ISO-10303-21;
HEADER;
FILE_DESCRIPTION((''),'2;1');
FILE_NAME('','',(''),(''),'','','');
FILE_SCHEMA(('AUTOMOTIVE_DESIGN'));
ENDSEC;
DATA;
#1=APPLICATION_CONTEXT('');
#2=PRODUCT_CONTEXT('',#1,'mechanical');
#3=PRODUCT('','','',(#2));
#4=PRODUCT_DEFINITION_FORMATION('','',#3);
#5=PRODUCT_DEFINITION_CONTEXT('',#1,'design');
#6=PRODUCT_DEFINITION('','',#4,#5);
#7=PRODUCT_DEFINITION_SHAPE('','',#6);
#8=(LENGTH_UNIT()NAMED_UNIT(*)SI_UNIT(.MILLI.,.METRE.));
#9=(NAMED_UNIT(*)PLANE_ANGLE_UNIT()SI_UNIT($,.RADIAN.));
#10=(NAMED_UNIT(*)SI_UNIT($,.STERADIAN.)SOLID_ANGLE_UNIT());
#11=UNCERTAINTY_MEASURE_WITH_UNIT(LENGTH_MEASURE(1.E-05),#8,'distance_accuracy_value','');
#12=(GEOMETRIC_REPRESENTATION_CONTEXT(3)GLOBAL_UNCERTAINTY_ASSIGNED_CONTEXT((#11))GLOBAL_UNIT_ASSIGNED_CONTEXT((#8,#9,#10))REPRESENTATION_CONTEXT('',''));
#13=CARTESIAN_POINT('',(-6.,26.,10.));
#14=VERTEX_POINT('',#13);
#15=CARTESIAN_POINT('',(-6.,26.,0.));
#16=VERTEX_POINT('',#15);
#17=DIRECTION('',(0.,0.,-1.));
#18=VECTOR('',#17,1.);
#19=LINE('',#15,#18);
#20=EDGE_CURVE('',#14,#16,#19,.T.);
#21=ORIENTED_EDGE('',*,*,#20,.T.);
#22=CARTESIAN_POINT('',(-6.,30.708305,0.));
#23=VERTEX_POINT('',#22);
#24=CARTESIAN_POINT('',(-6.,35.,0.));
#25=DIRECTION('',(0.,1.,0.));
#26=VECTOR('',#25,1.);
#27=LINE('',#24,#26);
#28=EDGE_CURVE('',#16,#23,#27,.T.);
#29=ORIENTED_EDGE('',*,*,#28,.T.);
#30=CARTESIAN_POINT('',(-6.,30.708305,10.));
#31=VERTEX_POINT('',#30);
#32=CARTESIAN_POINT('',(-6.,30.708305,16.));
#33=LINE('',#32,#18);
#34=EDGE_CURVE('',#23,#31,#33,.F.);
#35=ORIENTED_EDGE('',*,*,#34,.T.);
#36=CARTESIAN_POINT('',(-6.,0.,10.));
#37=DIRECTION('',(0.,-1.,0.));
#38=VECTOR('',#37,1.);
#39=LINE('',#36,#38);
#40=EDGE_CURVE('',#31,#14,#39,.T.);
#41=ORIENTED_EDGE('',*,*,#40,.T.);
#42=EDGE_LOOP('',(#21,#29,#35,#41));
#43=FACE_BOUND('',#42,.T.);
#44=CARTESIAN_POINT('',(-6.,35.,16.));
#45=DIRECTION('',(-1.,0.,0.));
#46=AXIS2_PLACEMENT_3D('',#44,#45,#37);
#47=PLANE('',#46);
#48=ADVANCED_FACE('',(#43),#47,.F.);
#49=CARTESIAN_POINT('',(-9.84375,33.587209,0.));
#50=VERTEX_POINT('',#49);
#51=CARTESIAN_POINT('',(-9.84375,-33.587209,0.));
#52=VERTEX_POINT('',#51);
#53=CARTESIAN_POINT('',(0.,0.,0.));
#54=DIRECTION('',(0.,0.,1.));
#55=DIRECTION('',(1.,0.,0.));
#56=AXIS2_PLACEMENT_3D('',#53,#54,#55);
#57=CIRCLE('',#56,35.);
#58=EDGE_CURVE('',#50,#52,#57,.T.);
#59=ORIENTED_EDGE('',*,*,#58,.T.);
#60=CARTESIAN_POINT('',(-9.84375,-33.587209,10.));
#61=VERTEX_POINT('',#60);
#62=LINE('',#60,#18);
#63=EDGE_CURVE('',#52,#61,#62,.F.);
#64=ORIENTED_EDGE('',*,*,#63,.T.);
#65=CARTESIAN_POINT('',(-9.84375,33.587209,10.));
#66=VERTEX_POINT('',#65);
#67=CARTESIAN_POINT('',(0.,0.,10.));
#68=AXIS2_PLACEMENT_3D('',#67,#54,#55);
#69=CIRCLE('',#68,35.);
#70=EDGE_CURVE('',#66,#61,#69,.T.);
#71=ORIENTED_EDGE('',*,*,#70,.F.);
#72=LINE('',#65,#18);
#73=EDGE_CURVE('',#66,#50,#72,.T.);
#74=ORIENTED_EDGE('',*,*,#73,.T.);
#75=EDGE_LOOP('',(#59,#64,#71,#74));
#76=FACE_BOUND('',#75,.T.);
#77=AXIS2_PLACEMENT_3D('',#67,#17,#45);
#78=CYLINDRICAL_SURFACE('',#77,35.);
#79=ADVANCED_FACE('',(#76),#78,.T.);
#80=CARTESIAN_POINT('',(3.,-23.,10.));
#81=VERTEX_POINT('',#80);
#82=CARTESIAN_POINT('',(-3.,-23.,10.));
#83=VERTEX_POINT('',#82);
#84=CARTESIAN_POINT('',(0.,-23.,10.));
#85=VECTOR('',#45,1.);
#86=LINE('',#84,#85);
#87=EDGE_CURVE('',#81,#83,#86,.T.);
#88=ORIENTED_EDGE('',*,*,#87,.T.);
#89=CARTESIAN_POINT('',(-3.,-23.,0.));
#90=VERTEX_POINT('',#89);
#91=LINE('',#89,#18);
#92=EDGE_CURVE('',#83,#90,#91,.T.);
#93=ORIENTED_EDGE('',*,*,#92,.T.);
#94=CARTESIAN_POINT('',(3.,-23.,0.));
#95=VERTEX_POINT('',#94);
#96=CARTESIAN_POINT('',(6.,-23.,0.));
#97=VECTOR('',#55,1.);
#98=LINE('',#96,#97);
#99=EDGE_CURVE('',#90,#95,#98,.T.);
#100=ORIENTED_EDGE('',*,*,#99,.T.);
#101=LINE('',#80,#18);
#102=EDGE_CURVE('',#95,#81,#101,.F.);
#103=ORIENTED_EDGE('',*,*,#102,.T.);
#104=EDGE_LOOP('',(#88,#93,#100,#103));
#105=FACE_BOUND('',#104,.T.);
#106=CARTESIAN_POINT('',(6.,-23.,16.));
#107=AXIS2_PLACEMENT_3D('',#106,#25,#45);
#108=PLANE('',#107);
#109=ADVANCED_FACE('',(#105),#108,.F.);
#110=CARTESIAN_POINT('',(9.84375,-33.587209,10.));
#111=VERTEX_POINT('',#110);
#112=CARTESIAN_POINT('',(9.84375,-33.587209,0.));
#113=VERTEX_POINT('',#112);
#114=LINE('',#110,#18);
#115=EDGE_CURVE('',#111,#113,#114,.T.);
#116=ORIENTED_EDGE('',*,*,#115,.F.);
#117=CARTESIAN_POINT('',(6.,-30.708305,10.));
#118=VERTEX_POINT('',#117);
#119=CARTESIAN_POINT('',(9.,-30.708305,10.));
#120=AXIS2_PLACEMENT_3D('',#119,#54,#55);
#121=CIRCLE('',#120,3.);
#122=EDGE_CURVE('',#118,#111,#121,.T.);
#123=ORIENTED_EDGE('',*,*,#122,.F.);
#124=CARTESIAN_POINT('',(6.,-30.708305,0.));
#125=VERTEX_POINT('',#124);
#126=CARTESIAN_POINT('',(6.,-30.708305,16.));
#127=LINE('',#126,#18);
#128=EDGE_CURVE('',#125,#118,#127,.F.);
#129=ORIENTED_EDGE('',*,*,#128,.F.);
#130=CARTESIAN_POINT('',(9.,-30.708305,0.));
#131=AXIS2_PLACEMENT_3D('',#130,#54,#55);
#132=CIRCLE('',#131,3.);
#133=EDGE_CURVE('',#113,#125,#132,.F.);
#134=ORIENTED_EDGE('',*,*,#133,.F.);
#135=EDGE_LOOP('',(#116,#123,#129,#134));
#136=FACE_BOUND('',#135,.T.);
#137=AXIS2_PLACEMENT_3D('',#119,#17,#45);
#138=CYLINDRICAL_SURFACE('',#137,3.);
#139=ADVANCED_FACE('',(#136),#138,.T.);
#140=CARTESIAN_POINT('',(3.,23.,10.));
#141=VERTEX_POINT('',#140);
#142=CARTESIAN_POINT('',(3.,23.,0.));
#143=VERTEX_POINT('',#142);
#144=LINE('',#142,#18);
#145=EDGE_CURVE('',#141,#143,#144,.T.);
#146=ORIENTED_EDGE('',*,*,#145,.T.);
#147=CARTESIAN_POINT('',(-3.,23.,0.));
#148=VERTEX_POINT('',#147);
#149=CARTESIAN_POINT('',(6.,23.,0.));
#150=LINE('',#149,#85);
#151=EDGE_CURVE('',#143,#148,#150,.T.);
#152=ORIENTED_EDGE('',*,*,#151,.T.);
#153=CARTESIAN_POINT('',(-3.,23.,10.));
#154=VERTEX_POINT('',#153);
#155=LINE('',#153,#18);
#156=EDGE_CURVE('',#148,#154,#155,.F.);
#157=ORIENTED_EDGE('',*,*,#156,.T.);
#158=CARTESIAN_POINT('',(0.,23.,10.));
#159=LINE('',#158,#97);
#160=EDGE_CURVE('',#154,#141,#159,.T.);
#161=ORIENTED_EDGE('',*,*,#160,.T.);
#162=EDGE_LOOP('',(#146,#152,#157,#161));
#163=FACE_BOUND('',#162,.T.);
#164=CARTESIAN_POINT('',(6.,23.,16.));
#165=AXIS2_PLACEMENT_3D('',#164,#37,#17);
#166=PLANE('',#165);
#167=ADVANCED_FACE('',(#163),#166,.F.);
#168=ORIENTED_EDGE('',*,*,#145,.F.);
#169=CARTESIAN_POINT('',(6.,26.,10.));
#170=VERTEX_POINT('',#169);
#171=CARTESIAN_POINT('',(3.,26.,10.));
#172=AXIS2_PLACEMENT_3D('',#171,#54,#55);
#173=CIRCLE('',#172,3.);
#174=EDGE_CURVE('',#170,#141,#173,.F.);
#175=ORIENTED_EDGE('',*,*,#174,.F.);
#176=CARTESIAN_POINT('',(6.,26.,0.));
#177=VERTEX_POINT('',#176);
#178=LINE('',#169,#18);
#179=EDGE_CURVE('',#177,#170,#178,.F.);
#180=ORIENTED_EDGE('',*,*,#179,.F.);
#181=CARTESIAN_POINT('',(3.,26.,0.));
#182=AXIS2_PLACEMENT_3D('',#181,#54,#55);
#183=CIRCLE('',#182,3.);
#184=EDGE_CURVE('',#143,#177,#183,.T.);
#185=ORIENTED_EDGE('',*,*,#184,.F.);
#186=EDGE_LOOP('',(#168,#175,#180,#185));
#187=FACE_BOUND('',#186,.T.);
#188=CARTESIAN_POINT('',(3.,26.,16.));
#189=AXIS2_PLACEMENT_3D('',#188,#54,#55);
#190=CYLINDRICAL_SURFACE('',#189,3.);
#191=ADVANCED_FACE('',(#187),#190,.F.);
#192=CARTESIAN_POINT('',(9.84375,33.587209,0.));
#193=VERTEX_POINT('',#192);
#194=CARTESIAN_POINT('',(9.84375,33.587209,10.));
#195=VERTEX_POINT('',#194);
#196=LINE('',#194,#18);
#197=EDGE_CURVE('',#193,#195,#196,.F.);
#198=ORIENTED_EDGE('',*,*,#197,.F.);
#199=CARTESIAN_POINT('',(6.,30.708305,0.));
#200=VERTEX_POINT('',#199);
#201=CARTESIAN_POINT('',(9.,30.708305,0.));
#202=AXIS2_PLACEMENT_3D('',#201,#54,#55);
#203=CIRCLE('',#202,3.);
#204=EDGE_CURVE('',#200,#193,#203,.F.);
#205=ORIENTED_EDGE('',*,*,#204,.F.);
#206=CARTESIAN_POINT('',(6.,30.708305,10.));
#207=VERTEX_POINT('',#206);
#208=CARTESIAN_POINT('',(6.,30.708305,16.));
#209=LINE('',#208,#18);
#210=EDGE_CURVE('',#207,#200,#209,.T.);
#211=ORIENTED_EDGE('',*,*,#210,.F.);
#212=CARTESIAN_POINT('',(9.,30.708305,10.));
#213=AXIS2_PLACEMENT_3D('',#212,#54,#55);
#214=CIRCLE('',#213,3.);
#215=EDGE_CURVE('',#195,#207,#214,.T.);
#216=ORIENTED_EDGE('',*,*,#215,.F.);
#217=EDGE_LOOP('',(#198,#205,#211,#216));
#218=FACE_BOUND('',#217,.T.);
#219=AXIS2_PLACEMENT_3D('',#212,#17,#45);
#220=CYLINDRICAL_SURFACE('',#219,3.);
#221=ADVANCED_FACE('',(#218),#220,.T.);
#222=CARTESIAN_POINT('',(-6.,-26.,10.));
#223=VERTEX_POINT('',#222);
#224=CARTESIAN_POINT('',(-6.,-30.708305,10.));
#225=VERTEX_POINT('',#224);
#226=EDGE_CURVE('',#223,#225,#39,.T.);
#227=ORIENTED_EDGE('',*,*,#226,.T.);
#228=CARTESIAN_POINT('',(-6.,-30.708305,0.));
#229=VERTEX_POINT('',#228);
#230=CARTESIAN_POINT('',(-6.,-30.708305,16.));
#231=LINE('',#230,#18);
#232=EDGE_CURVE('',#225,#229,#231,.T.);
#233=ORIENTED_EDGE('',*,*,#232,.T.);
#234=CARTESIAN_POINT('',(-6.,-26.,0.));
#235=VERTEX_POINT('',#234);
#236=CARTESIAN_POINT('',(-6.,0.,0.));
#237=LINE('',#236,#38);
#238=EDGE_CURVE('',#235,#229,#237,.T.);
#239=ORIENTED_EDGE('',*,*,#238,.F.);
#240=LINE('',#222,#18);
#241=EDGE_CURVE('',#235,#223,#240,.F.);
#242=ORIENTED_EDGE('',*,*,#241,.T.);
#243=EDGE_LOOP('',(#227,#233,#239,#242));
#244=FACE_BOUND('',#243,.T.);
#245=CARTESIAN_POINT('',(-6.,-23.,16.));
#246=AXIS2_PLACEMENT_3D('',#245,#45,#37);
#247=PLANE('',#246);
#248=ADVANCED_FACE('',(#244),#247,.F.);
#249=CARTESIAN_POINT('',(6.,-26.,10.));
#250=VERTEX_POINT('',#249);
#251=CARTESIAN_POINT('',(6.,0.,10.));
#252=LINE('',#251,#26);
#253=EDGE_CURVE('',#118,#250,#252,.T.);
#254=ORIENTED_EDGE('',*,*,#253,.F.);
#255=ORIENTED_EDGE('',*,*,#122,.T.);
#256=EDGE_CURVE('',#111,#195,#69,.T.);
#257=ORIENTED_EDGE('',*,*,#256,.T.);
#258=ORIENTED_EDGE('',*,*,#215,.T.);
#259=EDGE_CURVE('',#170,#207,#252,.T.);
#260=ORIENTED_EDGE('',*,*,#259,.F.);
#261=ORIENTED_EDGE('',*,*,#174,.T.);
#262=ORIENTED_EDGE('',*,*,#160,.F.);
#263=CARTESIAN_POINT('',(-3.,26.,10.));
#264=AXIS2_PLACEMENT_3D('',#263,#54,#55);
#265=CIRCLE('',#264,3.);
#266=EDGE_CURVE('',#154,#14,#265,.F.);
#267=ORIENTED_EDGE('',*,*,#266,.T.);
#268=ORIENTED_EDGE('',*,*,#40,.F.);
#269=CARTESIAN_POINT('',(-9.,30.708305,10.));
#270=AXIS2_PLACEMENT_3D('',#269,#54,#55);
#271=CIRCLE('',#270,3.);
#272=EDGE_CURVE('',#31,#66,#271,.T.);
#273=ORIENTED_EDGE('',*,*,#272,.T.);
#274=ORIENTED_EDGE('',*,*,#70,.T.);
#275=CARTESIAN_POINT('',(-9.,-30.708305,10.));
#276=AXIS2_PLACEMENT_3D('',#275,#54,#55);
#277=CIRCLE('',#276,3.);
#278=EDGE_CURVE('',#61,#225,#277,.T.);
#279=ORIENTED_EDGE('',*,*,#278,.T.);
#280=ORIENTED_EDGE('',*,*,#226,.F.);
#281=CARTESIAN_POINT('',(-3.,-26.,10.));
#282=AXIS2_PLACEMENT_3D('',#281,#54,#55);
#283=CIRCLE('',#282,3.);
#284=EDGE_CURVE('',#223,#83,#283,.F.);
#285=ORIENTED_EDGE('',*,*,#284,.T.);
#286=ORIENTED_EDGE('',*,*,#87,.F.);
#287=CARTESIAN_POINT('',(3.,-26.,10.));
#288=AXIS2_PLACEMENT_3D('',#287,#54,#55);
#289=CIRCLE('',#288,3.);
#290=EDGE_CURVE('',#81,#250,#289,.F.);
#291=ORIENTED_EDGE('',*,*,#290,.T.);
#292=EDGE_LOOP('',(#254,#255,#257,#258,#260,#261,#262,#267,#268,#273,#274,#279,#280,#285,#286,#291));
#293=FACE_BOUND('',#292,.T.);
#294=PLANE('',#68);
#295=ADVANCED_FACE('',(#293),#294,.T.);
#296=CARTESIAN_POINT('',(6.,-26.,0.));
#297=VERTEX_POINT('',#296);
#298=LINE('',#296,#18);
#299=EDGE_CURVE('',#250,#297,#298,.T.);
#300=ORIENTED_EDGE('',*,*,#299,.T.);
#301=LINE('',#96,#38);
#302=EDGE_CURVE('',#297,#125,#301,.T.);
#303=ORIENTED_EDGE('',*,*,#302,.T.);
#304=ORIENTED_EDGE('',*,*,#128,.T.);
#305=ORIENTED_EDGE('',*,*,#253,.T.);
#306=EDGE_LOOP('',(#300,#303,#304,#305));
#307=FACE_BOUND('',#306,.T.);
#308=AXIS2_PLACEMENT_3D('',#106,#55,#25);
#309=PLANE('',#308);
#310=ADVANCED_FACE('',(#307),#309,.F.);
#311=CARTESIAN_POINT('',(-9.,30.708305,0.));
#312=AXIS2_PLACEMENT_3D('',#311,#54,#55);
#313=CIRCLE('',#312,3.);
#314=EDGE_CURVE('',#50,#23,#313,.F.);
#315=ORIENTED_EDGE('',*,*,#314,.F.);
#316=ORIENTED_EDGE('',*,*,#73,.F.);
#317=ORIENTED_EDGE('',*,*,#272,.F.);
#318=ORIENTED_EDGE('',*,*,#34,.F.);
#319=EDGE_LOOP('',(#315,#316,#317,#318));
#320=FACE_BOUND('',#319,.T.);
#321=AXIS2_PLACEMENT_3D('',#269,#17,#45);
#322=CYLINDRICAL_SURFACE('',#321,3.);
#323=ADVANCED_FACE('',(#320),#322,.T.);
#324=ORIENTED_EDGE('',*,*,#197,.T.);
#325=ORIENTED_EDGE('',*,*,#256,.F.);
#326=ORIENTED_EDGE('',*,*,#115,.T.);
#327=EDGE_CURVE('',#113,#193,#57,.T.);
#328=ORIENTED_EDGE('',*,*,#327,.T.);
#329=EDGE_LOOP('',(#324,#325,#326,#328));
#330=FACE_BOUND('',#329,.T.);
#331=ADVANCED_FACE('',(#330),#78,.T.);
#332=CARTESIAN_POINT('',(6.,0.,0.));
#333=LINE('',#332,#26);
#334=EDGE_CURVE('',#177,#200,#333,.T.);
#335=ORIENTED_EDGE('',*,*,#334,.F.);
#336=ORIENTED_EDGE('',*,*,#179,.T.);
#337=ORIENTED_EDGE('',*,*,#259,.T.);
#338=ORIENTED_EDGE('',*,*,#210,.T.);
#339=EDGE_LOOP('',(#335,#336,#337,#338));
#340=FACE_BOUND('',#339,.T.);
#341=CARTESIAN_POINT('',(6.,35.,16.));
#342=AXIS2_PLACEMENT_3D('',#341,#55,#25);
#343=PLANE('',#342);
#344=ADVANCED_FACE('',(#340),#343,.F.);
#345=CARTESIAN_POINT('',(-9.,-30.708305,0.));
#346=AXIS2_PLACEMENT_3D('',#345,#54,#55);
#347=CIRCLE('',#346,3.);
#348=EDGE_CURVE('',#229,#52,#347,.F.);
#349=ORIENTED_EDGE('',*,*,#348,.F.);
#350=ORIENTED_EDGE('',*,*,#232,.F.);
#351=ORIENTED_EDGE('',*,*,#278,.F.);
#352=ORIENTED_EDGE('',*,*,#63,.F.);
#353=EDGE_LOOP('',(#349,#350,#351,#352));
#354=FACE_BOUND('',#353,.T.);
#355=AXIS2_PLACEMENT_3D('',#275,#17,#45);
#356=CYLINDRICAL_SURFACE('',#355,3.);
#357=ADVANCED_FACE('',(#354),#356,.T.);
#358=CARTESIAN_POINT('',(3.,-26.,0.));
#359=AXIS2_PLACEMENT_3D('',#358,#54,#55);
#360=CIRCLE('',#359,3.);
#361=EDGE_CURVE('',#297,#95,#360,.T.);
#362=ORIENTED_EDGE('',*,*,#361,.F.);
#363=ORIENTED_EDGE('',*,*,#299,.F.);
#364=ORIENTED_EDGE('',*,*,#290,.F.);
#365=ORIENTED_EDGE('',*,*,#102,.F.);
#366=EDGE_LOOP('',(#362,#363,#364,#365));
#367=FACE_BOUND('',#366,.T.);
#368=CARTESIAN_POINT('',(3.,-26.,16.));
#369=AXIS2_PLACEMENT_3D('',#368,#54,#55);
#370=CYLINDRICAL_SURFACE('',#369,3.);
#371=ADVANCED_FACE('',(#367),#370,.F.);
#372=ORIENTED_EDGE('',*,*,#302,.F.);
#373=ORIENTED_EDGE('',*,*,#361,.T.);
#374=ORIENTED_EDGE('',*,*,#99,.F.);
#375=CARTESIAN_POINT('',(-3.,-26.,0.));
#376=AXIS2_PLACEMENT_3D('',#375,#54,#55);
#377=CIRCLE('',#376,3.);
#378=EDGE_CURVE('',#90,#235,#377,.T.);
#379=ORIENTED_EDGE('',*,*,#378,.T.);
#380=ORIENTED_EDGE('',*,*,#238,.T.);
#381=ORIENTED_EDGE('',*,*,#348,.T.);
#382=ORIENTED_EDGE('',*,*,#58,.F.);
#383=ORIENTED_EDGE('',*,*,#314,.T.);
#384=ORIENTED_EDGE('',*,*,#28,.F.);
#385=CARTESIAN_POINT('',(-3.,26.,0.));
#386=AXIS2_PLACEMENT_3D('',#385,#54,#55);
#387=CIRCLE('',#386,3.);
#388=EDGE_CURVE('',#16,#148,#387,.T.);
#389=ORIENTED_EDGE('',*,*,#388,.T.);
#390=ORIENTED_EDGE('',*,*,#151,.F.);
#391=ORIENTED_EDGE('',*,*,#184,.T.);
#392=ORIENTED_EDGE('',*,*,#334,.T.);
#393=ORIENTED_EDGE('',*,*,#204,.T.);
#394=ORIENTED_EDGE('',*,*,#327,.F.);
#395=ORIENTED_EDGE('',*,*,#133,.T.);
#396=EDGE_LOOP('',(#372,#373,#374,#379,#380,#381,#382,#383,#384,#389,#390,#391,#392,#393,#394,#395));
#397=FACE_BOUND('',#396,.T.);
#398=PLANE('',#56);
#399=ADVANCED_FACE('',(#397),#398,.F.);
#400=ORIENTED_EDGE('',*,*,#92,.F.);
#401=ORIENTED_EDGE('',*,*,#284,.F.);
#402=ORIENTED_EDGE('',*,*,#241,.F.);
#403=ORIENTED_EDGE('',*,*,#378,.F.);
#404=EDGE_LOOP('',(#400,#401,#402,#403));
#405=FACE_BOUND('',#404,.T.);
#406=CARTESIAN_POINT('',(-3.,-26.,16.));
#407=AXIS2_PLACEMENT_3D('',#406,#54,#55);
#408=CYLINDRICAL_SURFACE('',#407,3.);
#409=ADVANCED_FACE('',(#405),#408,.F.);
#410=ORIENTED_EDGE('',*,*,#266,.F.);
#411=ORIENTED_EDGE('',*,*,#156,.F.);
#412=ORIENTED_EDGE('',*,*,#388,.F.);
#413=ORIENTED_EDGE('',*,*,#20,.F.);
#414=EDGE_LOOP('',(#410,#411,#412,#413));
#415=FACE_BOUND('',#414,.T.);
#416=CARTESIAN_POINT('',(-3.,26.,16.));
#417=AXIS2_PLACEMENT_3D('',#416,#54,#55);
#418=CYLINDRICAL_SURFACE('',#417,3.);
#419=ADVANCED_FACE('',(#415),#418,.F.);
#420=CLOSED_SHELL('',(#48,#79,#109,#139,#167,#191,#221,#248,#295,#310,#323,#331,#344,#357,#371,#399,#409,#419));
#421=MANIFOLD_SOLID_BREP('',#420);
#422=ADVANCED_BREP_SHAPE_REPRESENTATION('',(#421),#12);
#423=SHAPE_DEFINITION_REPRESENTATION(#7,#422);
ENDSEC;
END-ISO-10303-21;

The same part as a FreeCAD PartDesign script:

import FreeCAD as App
import Part
import Sketcher
from FreeCAD import Vector


def edges_at(feature, points):
    """Names of the edges that pass closest to the given points."""
    edges = feature.Shape.Edges
    near = lambda p: min(range(len(edges)), key=lambda i: edges[i].distToShape(Part.Vertex(*p))[0])
    return sorted({f"Edge{near(p) + 1}" for p in points})


def add_polygon(sketch, points):
    """Adds a closed chain of lines whose ends are joined by coincident constraints."""
    first, n = sketch.GeometryCount, len(points)
    for a, b in zip(points, points[1:] + points[:1]):
        sketch.addGeometry(Part.LineSegment(App.Vector(*a, 0), App.Vector(*b, 0)), False)
    for i in range(n):
        sketch.addConstraint(Sketcher.Constraint("Coincident", first + i, 2, first + (i + 1) % n, 1))

doc = App.newDocument("Part")
body = doc.addObject("PartDesign::Body", "Body")

# Sketch on XY plane
sketch1 = body.newObject("Sketcher::SketchObject", "Sketch")
sketch1.AttachmentSupport = (doc.getObject("XY_Plane"), [""])
sketch1.MapMode = "FlatFace"
sketch1.addGeometry(Part.Circle(Vector(0, 0, 0), Vector(0, 0, 1), 35), False)
sketch1.addConstraint(Sketcher.Constraint("Coincident", 0, 3, -1, 1))
sketch1.addConstraint(Sketcher.Constraint("Diameter", 0, 70.0))
pad1 = body.newObject("PartDesign::Pad", "Pad")
pad1.Profile = sketch1
pad1.Length = 10

# Sketch on XY plane
sketch2 = body.newObject("Sketcher::SketchObject", "Sketch001")
sketch2.AttachmentSupport = (doc.getObject("XY_Plane"), [""])
sketch2.MapMode = "FlatFace"
add_polygon(sketch2, [(6, 35), (6, 23), (-6, 23), (-6, 35)])  # lines 0-3
add_polygon(sketch2, [(6, -23), (6, -35), (-6, -35), (-6, -23)])  # lines 4-7
sketch2.addConstraint(Sketcher.Constraint("Vertical", 0))
sketch2.addConstraint(Sketcher.Constraint("Horizontal", 1))
sketch2.addConstraint(Sketcher.Constraint("Vertical", 2))
sketch2.addConstraint(Sketcher.Constraint("Horizontal", 3))
sketch2.addConstraint(Sketcher.Constraint("Vertical", 4))
sketch2.addConstraint(Sketcher.Constraint("Horizontal", 5))
sketch2.addConstraint(Sketcher.Constraint("Vertical", 6))
sketch2.addConstraint(Sketcher.Constraint("Horizontal", 7))
sketch2.addConstraint(Sketcher.Constraint("Symmetric", 2, 2, 4, 2, -1, 1))
sketch2.addConstraint(Sketcher.Constraint("Symmetric", 0, 2, 6, 2, -1, 1))
sketch2.addConstraint(Sketcher.Constraint("Vertical", 3, 2, 4, 2))
sketch2.addConstraint(Sketcher.Constraint("Equal", 7, 0))
sketch2.addConstraint(Sketcher.Constraint("DistanceX", 1, 2, 1, 1, 12.0))
sketch2.addConstraint(Sketcher.Constraint("DistanceY", -1, 1, 0, 2, 23.0))
pocket1 = body.newObject("PartDesign::Pocket", "Pocket")
pocket1.Profile = sketch2
pocket1.Length = 16
pocket1.Reversed = True
doc.recompute()

fillet = body.newObject("PartDesign::Fillet", "Fillet")
fillet.Base = (pocket1, edges_at(pocket1, [
    (-6, 34.482, 5),
    (6, 34.482, 5),
    (6, 23, 5),
    (-6, 23, 5),
    (-6, -34.482, 5),
    (-6, -23, 5),
    (6, -34.482, 5),
    (6, -23, 5),
]))
fillet.Radius = 3

doc.recompute()
